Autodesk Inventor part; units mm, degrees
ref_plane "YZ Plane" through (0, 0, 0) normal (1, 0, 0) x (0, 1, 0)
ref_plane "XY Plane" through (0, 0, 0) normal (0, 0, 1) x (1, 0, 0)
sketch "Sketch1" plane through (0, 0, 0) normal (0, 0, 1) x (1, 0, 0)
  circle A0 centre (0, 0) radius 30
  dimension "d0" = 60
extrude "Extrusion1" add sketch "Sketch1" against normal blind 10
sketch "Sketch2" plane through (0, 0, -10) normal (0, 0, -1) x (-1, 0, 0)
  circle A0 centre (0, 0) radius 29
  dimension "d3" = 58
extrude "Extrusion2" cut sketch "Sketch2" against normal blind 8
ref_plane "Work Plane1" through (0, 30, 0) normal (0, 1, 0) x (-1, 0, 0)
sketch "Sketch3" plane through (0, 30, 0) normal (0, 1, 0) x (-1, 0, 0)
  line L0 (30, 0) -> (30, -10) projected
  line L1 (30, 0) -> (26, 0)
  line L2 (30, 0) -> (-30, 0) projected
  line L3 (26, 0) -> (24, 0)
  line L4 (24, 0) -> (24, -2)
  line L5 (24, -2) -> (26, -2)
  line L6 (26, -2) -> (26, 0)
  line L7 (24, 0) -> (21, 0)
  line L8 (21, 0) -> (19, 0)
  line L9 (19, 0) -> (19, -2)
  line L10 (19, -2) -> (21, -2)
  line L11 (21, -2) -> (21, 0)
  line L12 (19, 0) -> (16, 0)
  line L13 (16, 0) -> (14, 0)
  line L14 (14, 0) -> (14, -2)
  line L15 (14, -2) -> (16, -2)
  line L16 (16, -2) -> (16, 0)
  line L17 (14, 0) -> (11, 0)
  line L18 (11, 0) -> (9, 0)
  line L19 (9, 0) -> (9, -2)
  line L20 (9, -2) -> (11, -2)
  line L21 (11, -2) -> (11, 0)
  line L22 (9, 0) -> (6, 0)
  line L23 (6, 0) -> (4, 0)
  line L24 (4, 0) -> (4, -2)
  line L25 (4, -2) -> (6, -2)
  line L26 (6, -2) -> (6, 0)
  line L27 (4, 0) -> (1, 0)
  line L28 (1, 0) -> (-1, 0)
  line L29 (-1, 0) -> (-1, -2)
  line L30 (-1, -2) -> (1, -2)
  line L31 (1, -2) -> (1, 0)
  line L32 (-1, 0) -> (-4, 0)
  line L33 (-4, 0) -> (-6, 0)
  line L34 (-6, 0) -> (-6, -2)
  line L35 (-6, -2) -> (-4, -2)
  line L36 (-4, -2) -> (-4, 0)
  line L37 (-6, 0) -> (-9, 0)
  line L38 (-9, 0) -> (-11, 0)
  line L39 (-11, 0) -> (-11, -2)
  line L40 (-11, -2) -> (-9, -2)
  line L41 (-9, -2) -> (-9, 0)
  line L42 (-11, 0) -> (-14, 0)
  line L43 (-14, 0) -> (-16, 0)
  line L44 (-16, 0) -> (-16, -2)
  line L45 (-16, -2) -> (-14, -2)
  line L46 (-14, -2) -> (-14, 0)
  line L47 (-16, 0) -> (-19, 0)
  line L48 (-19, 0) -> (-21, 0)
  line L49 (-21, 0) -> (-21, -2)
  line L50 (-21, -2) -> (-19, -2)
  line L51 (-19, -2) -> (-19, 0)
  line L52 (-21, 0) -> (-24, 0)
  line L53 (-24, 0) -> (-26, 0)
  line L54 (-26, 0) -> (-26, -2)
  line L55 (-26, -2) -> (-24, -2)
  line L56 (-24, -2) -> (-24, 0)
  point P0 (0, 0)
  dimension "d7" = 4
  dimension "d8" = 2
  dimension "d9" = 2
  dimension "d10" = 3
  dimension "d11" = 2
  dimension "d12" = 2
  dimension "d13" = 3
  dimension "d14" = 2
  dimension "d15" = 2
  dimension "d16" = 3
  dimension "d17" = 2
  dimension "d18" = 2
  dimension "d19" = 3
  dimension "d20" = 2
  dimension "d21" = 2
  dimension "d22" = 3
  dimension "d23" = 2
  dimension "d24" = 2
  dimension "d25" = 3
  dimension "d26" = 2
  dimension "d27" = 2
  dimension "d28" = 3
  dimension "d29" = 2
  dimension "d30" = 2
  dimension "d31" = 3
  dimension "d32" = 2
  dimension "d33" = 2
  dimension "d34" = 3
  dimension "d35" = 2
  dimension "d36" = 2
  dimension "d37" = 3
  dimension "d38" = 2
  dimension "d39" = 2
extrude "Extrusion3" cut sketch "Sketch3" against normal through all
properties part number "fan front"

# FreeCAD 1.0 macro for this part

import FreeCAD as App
import Part
import Sketcher

V = App.Vector


def add_polygon(sketch, points):
    """Adds a closed chain of lines whose ends are joined by coincident constraints."""
    first, n = sketch.GeometryCount, len(points)
    for a, b in zip(points, points[1:] + points[:1]):
        sketch.addGeometry(Part.LineSegment(App.Vector(*a, 0), App.Vector(*b, 0)), False)
    for i in range(n):
        sketch.addConstraint(Sketcher.Constraint("Coincident", first + i, 2, first + (i + 1) % n, 1))

doc = App.newDocument("Part")
body = doc.addObject("PartDesign::Body", "Body")

sketch1 = doc.addObject("Sketcher::SketchObject", "Sketch")
body.addObject(sketch1)
sketch1.AttachmentSupport = (doc.XY_Plane, [""])
sketch1.MapMode = "FlatFace"
sketch1.addGeometry(Part.Circle(V(0, 0, 0), V(0, 0, 1), 30), False)
sketch1.addConstraint([
    Sketcher.Constraint("Coincident", 0, 3, -1, 1),
    Sketcher.Constraint("Diameter", 0, 60.0),
])
pad1 = doc.addObject("PartDesign::Pad", "Pad")
body.addObject(pad1)
pad1.Profile = sketch1
pad1.Length = 10
pad1.Reversed = True

sketch2 = doc.addObject("Sketcher::SketchObject", "Sketch001")
body.addObject(sketch2)
sketch2.AttachmentSupport = (doc.XY_Plane, [""])
sketch2.MapMode = "FlatFace"
sketch2.AttachmentOffset = App.Placement(V(0, 0, -10), App.Rotation())
sketch2.addGeometry(Part.Circle(V(0, 0, 0), V(0, 0, 1), 29), False)
sketch2.addConstraint([
    Sketcher.Constraint("Coincident", 0, 3, -1, 1),
    Sketcher.Constraint("Diameter", 0, 58.0),
])
pocket1 = doc.addObject("PartDesign::Pocket", "Pocket")
body.addObject(pocket1)
pocket1.Profile = sketch2
pocket1.Length = 8
pocket1.Reversed = True

sketch3 = doc.addObject("Sketcher::SketchObject", "Sketch002")
body.addObject(sketch3)
sketch3.AttachmentSupport = (doc.XZ_Plane, [""])
sketch3.MapMode = "FlatFace"
sketch3.AttachmentOffset = App.Placement(V(0, 0, -30), App.Rotation())
add_polygon(sketch3, [(-26, -2), (-26, 0), (-24, 0), (-24, -2)])
add_polygon(sketch3, [(24, -2), (24, 0), (26, 0), (26, -2)])
add_polygon(sketch3, [(19, -2), (19, 0), (21, 0), (21, -2)])
add_polygon(sketch3, [(14, -2), (14, 0), (16, 0), (16, -2)])
add_polygon(sketch3, [(9, -2), (9, 0), (11, 0), (11, -2)])
add_polygon(sketch3, [(4, -2), (4, 0), (6, 0), (6, -2)])
add_polygon(sketch3, [(-1, -2), (-1, 0), (1, 0), (1, -2)])
add_polygon(sketch3, [(-6, -2), (-6, 0), (-4, 0), (-4, -2)])
add_polygon(sketch3, [(-11, -2), (-11, 0), (-9, 0), (-9, -2)])
add_polygon(sketch3, [(-16, -2), (-16, 0), (-14, 0), (-14, -2)])
add_polygon(sketch3, [(-21, -2), (-21, 0), (-19, 0), (-19, -2)])
sketch3.addConstraint([
    Sketcher.Constraint("Vertical", 0),
    Sketcher.Constraint("Horizontal", 1),
    Sketcher.Constraint("Vertical", 2),
    Sketcher.Constraint("Horizontal", 3),
    Sketcher.Constraint("Vertical", 4),
    Sketcher.Constraint("Horizontal", 5),
    Sketcher.Constraint("Vertical", 6),
    Sketcher.Constraint("Horizontal", 7),
    Sketcher.Constraint("Vertical", 8),
    Sketcher.Constraint("Horizontal", 9),
    Sketcher.Constraint("Vertical", 10),
    Sketcher.Constraint("Horizontal", 11),
    Sketcher.Constraint("Vertical", 12),
    Sketcher.Constraint("Horizontal", 13),
    Sketcher.Constraint("Vertical", 14),
    Sketcher.Constraint("Horizontal", 15),
    Sketcher.Constraint("Vertical", 16),
    Sketcher.Constraint("Horizontal", 17),
    Sketcher.Constraint("Vertical", 18),
    Sketcher.Constraint("Horizontal", 19),
    Sketcher.Constraint("Vertical", 20),
    Sketcher.Constraint("Horizontal", 21),
    Sketcher.Constraint("Vertical", 22),
    Sketcher.Constraint("Horizontal", 23),
    Sketcher.Constraint("Vertical", 24),
    Sketcher.Constraint("Horizontal", 25),
    Sketcher.Constraint("Vertical", 26),
    Sketcher.Constraint("Horizontal", 27),
    Sketcher.Constraint("Vertical", 28),
    Sketcher.Constraint("Horizontal", 29),
    Sketcher.Constraint("Vertical", 30),
    Sketcher.Constraint("Horizontal", 31),
    Sketcher.Constraint("Vertical", 32),
    Sketcher.Constraint("Horizontal", 33),
    Sketcher.Constraint("Vertical", 34),
    Sketcher.Constraint("Horizontal", 35),
    Sketcher.Constraint("Vertical", 36),
    Sketcher.Constraint("Horizontal", 37),
    Sketcher.Constraint("Vertical", 38),
    Sketcher.Constraint("Horizontal", 39),
    Sketcher.Constraint("Vertical", 40),
    Sketcher.Constraint("Horizontal", 41),
    Sketcher.Constraint("Vertical", 42),
    Sketcher.Constraint("Horizontal", 43),
    Sketcher.Constraint("Symmetric", 1, 2, 4, 2, -1, 1),
    Sketcher.Constraint("Symmetric", 24, 2, 25, 2, -1, 1),
    Sketcher.Constraint("Symmetric", 21, 2, 28, 2, -1, 1),
    Sketcher.Constraint("Symmetric", 17, 2, 32, 2, -1, 1),
    Sketcher.Constraint("Symmetric", 13, 2, 36, 2, -1, 1),
    Sketcher.Constraint("Symmetric", 9, 2, 40, 2, -1, 1),
    Sketcher.Constraint("Symmetric", 0, 2, 5, 2, -2),
    Sketcher.Constraint("Symmetric", 20, 2, 29, 2, -2),
    Sketcher.Constraint("Symmetric", 16, 2, 33, 2, -2),
    Sketcher.Constraint("Symmetric", 12, 2, 37, 2, -2),
    Sketcher.Constraint("Symmetric", 8, 2, 41, 2, -2),
    Sketcher.Constraint("Horizontal", 3, 2, 6, 2),
    Sketcher.Constraint("Horizontal", 7, 2, 10, 2),
    Sketcher.Constraint("Horizontal", 11, 2, 14, 2),
    Sketcher.Constraint("Horizontal", 15, 2, 18, 2),
    Sketcher.Constraint("Horizontal", 19, 2, 22, 2),
    Sketcher.Constraint("Horizontal", 23, 2, 26, 2),
    Sketcher.Constraint("Horizontal", 27, 2, 30, 2),
    Sketcher.Constraint("Horizontal", 31, 2, 34, 2),
    Sketcher.Constraint("Horizontal", 35, 2, 38, 2),
    Sketcher.Constraint("Horizontal", 39, 2, 42, 2),
    Sketcher.Constraint("Equal", 7, 9),
    Sketcher.Constraint("Equal", 11, 13),
    Sketcher.Constraint("Equal", 15, 17),
    Sketcher.Constraint("Equal", 19, 21),
    Sketcher.Constraint("Equal", 23, 25),
    Sketcher.Constraint("Equal", 43, 0),
    Sketcher.Constraint("DistanceX", 1, 1, 1, 2, 2.0),
    Sketcher.Constraint("DistanceX", -1, 1, 20, 2, 4.0),
    Sketcher.Constraint("DistanceX", 9, 2, 4, 2, 3.0),
    Sketcher.Constraint("DistanceX", 13, 2, 8, 2, 3.0),
    Sketcher.Constraint("DistanceX", 17, 2, 12, 2, 3.0),
    Sketcher.Constraint("DistanceX", 21, 2, 16, 2, 3.0),
])
pocket2 = doc.addObject("PartDesign::Pocket", "Pocket001")
body.addObject(pocket2)
pocket2.Profile = sketch3
pocket2.Type = "ThroughAll"
pocket2.Reversed = True

doc.recompute()
